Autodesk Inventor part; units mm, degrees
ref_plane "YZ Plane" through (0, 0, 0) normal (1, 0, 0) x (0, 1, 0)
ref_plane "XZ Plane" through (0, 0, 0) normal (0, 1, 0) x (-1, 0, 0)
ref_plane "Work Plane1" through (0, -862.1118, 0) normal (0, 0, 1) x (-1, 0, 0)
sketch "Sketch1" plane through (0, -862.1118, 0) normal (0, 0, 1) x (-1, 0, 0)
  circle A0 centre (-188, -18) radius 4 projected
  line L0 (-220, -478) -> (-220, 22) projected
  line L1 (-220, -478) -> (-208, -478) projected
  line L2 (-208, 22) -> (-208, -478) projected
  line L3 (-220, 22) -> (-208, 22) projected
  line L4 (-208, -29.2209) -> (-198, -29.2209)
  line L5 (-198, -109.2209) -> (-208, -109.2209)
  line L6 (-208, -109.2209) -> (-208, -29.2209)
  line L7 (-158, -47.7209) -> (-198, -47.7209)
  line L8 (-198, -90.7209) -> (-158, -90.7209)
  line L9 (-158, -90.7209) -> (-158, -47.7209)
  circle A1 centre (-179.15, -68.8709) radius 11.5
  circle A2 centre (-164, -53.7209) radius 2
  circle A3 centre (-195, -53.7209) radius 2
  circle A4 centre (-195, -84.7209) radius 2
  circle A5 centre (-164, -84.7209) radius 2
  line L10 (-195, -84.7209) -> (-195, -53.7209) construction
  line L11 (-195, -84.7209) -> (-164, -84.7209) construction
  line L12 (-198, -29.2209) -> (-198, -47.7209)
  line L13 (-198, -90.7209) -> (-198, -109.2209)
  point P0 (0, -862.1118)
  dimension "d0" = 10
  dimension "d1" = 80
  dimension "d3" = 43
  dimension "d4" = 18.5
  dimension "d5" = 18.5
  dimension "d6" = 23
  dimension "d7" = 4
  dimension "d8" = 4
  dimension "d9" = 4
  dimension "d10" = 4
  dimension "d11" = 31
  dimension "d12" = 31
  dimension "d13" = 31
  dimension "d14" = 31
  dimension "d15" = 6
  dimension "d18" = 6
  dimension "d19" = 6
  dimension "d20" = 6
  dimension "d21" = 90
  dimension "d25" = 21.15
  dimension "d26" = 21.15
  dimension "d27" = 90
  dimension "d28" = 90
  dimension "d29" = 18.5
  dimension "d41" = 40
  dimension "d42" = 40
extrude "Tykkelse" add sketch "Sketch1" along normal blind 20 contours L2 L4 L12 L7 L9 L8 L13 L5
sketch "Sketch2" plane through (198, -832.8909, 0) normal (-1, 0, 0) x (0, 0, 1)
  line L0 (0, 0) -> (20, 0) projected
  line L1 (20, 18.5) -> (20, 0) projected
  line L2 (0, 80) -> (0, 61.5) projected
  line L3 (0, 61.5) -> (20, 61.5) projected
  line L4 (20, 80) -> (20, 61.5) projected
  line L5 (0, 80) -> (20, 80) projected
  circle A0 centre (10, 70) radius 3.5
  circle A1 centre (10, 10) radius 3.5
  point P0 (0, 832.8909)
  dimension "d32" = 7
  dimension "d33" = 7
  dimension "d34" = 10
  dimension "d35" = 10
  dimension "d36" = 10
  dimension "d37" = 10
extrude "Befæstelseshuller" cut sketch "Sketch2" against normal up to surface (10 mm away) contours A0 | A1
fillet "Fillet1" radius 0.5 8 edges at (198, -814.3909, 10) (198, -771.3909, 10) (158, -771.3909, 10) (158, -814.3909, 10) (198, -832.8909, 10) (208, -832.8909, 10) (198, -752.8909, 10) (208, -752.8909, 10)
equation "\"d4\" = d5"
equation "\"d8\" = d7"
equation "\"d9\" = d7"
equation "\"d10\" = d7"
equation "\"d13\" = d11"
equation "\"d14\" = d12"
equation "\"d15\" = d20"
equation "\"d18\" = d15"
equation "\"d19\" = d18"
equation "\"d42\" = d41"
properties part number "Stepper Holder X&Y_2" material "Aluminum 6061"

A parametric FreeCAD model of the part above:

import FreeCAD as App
import Part
import Sketcher


def edges_at(feature, points):
    """Names of the edges that pass closest to the given points."""
    edges = feature.Shape.Edges
    near = lambda p: min(range(len(edges)), key=lambda i: edges[i].distToShape(Part.Vertex(*p))[0])
    return sorted({f"Edge{near(p) + 1}" for p in points})


def add_polygon(sketch, points):
    """Adds a closed chain of lines whose ends are joined by coincident constraints."""
    first, n = sketch.GeometryCount, len(points)
    for a, b in zip(points, points[1:] + points[:1]):
        sketch.addGeometry(Part.LineSegment(App.Vector(*a, 0), App.Vector(*b, 0)), False)
    for i in range(n):
        sketch.addConstraint(Sketcher.Constraint("Coincident", first + i, 2, first + (i + 1) % n, 1))

doc = App.newDocument("Part")
body = doc.addObject("PartDesign::Body", "Body")

sketch1 = doc.addObject("Sketcher::SketchObject", "Sketch")
body.addObject(sketch1)
sketch1.AttachmentSupport = (doc.XY_Plane, [""])
sketch1.MapMode = "FlatFace"
add_polygon(sketch1, [(208, -832.8909), (208, -752.8909), (198, -752.8909), (198, -771.3909), (158, -771.3909), (158, -814.3909), (198, -814.3909), (198, -832.8909)])
sketch1.addGeometry(Part.Circle(App.Vector(195, -777.3909, 0), App.Vector(0, 0, 1), 2), False)
sketch1.addGeometry(Part.Circle(App.Vector(195, -808.3909, 0), App.Vector(0, 0, 1), 2), False)
sketch1.addGeometry(Part.Circle(App.Vector(179.15, -793.2409, 0), App.Vector(0, 0, 1), 11.5), False)
sketch1.addGeometry(Part.Circle(App.Vector(164, -777.3909, 0), App.Vector(0, 0, 1), 2), False)
sketch1.addGeometry(Part.Circle(App.Vector(164, -808.3909, 0), App.Vector(0, 0, 1), 2), False)
sketch1.addConstraint(Sketcher.Constraint("Vertical", 0))
sketch1.addConstraint(Sketcher.Constraint("Horizontal", 1))
sketch1.addConstraint(Sketcher.Constraint("Vertical", 2))
sketch1.addConstraint(Sketcher.Constraint("Horizontal", 3))
sketch1.addConstraint(Sketcher.Constraint("Vertical", 4))
sketch1.addConstraint(Sketcher.Constraint("Horizontal", 5))
sketch1.addConstraint(Sketcher.Constraint("Vertical", 6))
sketch1.addConstraint(Sketcher.Constraint("Horizontal", 7))
sketch1.addConstraint(Sketcher.Constraint("Equal", 8, 9))
sketch1.addConstraint(Sketcher.Constraint("Equal", 9, 11))
sketch1.addConstraint(Sketcher.Constraint("Equal", 11, 12))
sketch1.addConstraint(Sketcher.Constraint("Horizontal", 8, 3, 11, 3))
sketch1.addConstraint(Sketcher.Constraint("Horizontal", 9, 3, 12, 3))
sketch1.addConstraint(Sketcher.Constraint("Vertical", 8, 3, 9, 3))
sketch1.addConstraint(Sketcher.Constraint("Vertical", 11, 3, 12, 3))
sketch1.addConstraint(Sketcher.Constraint("Vertical", 2, 2, 5, 2))
sketch1.addConstraint(Sketcher.Constraint("Equal", 2, 6))
sketch1.addConstraint(Sketcher.Constraint("Diameter", 8, 4.0))
sketch1.addConstraint(Sketcher.Constraint("Diameter", 10, 23.0))
sketch1.addConstraint(Sketcher.Constraint("DistanceX", 1, 2, 1, 1, 10.0))
sketch1.addConstraint(Sketcher.Constraint("DistanceX", 3, 2, 3, 1, 40.0))
sketch1.addConstraint(Sketcher.Constraint("DistanceY", 0, 1, 0, 2, 80.0))
sketch1.addConstraint(Sketcher.Constraint("DistanceY", 4, 2, 4, 1, 43.0))
sketch1.addConstraint(Sketcher.Constraint("DistanceY", 9, 3, 8, 3, 31.0))
sketch1.addConstraint(Sketcher.Constraint("DistanceX", 11, 3, 8, 3, 31.0))
sketch1.addConstraint(Sketcher.Constraint("DistanceY", 8, 3, 2, 2, 6.0))
sketch1.addConstraint(Sketcher.Constraint("DistanceX", 3, 2, 11, 3, 6.0))
sketch1.addConstraint(Sketcher.Constraint("DistanceX", 3, 2, 10, 3, 21.15))
sketch1.addConstraint(Sketcher.Constraint("DistanceY", 4, 2, 10, 3, 21.15))
sketch1.addConstraint(Sketcher.Constraint("DistanceX", -1, 1, 8, 3, 195.0))
sketch1.addConstraint(Sketcher.Constraint("DistanceY", 8, 3, -1, 1, 777.391))
pad1 = doc.addObject("PartDesign::Pad", "Pad")
body.addObject(pad1)
pad1.Profile = sketch1
pad1.Length = 20

sketch2 = doc.addObject("Sketcher::SketchObject", "Sketch001")
body.addObject(sketch2)
sketch2.AttachmentSupport = (doc.YZ_Plane, [""])
sketch2.MapMode = "FlatFace"
sketch2.AttachmentOffset = App.Placement(App.Vector(0, 0, 198), App.Rotation())
sketch2.addGeometry(Part.Circle(App.Vector(-762.8909, 10, 0), App.Vector(0, 0, 1), 3.5), False)
sketch2.addGeometry(Part.Circle(App.Vector(-822.8909, 10, 0), App.Vector(0, 0, 1), 3.5), False)
sketch2.addConstraint(Sketcher.Constraint("Equal", 0, 1))
sketch2.addConstraint(Sketcher.Constraint("Horizontal", 0, 3, 1, 3))
sketch2.addConstraint(Sketcher.Constraint("Diameter", 0, 7.0))
sketch2.addConstraint(Sketcher.Constraint("DistanceY", -1, 1, 0, 3, 10.0))
sketch2.addConstraint(Sketcher.Constraint("DistanceX", 1, 3, 0, 3, 60.0))
sketch2.addConstraint(Sketcher.Constraint("DistanceX", 0, 3, -1, 1, 762.891))
pocket1 = doc.addObject("PartDesign::Pocket", "Pocket")
body.addObject(pocket1)
pocket1.Profile = sketch2
pocket1.Length = 10
pocket1.Reversed = True
doc.recompute()

fillet = doc.addObject("PartDesign::Fillet", "Fillet")
body.addObject(fillet)
fillet.Base = (pocket1, edges_at(pocket1, [
    (198, -814.391, 10),
    (198, -771.391, 10),
    (158, -771.391, 10),
    (158, -814.391, 10),
    (198, -832.891, 10),
    (208, -832.891, 10),
    (198, -752.891, 10),
    (208, -752.891, 10),
]))
fillet.Radius = 0.5

doc.recompute()
